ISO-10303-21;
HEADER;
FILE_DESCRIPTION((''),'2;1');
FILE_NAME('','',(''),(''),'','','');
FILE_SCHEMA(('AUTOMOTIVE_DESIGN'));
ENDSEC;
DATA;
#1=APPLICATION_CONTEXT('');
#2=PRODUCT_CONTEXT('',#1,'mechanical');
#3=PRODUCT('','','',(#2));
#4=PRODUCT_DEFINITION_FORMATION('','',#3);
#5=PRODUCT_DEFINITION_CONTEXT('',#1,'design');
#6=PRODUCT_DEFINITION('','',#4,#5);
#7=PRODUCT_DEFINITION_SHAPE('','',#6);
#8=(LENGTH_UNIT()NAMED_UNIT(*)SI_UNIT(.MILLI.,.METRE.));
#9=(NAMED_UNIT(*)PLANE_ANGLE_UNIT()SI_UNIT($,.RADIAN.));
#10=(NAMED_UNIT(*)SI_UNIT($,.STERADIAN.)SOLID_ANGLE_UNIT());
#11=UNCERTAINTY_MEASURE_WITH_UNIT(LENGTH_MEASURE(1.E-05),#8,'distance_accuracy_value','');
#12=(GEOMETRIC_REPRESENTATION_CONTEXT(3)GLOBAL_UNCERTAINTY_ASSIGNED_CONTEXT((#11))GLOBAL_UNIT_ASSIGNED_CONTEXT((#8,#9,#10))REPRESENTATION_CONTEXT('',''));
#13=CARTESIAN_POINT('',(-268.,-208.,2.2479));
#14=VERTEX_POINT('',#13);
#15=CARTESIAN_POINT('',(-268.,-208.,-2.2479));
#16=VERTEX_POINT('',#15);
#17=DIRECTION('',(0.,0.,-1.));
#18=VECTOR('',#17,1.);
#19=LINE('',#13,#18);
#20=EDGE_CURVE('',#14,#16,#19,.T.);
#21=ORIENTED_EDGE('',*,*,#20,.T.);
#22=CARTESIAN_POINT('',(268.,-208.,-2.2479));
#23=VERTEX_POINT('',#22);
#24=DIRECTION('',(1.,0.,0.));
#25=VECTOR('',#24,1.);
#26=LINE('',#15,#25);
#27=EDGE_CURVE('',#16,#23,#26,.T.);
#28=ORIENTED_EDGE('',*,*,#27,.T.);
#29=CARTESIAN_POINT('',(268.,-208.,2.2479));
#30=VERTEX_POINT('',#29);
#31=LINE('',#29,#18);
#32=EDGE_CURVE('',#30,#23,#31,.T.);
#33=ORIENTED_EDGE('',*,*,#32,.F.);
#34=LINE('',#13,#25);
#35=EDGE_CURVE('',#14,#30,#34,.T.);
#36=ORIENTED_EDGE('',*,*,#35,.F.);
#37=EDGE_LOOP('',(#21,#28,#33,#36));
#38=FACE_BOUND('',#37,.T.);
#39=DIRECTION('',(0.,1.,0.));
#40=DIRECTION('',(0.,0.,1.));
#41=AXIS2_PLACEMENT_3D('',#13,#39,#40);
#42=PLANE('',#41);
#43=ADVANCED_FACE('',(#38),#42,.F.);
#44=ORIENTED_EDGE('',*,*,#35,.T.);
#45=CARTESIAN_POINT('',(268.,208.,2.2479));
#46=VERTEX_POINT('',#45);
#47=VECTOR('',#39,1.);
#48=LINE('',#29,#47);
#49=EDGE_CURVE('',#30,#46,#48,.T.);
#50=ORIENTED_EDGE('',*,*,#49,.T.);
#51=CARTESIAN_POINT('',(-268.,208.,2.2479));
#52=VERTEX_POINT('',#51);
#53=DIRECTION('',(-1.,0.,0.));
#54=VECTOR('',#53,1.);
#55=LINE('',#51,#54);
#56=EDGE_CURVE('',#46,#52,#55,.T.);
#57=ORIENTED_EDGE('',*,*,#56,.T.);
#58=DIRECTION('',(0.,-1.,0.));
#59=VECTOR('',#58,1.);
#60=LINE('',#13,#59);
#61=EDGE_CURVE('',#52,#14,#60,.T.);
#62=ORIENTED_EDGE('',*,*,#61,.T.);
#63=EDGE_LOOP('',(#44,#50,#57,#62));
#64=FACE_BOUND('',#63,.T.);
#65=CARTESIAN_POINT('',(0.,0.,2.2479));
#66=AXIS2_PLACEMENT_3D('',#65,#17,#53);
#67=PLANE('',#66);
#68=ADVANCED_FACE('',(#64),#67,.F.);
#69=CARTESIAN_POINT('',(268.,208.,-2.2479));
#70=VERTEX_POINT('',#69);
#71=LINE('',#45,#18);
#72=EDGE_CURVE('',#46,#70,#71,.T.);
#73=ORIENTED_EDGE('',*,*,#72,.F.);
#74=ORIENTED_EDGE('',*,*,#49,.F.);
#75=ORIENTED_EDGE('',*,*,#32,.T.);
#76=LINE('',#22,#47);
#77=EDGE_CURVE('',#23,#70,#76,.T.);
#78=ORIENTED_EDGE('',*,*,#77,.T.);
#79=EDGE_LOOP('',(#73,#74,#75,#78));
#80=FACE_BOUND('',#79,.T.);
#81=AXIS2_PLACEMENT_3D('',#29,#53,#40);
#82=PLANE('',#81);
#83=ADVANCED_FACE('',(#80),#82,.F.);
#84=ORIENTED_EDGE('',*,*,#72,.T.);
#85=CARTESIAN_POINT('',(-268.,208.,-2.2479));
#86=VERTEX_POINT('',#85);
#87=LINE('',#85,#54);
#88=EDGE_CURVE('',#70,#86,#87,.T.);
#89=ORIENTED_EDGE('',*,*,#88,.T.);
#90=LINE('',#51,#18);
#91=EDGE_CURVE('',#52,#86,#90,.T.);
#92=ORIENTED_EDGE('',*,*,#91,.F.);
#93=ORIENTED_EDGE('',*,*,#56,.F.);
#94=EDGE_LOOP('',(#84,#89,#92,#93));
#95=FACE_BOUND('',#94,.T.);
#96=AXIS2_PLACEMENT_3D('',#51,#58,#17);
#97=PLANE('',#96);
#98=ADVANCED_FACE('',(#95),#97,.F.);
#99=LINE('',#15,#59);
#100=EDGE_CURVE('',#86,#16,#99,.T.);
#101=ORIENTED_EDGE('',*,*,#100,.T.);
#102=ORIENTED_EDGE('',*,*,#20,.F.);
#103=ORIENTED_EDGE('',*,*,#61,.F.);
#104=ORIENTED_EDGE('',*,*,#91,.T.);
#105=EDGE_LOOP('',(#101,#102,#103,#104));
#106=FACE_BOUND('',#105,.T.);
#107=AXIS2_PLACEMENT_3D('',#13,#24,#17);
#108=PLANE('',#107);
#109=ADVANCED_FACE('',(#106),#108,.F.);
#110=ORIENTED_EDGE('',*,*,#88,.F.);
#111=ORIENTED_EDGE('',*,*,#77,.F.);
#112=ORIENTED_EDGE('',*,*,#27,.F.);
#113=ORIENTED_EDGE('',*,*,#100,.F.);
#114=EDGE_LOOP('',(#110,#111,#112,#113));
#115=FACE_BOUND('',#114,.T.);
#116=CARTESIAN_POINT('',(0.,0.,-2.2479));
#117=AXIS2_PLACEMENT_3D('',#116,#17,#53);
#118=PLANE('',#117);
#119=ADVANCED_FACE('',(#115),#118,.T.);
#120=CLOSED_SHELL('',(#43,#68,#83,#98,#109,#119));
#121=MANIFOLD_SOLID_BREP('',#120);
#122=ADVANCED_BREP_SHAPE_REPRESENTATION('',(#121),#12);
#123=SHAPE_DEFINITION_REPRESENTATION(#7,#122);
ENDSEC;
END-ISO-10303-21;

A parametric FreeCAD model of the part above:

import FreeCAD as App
import Part
import Sketcher


def add_polygon(sketch, points):
    """Adds a closed chain of lines whose ends are joined by coincident constraints."""
    first, n = sketch.GeometryCount, len(points)
    for a, b in zip(points, points[1:] + points[:1]):
        sketch.addGeometry(Part.LineSegment(App.Vector(*a, 0), App.Vector(*b, 0)), False)
    for i in range(n):
        sketch.addConstraint(Sketcher.Constraint("Coincident", first + i, 2, first + (i + 1) % n, 1))

doc = App.newDocument("Part")
body = doc.addObject("PartDesign::Body", "Body")

sketch1 = doc.addObject("Sketcher::SketchObject", "Sketch")
body.addObject(sketch1)
sketch1.AttachmentSupport = (doc.XY_Plane, [""])
sketch1.MapMode = "FlatFace"
add_polygon(sketch1, [(-268, 208), (-268, -208), (268, -208), (268, 208)])
sketch1.addConstraint([
    Sketcher.Constraint("Vertical", 0),
    Sketcher.Constraint("Horizontal", 1),
    Sketcher.Constraint("Vertical", 2),
    Sketcher.Constraint("Horizontal", 3),
    Sketcher.Constraint("Symmetric", 0, 2, 2, 2, -1, 1),
    Sketcher.Constraint("DistanceX", 1, 1, 1, 2, 536.0),
    Sketcher.Constraint("DistanceY", 0, 2, 0, 1, 416.0),
])
pad1 = doc.addObject("PartDesign::Pad", "Pad")
body.addObject(pad1)
pad1.Profile = sketch1
pad1.Length = 4.4958
pad1.Midplane = True

doc.recompute()
